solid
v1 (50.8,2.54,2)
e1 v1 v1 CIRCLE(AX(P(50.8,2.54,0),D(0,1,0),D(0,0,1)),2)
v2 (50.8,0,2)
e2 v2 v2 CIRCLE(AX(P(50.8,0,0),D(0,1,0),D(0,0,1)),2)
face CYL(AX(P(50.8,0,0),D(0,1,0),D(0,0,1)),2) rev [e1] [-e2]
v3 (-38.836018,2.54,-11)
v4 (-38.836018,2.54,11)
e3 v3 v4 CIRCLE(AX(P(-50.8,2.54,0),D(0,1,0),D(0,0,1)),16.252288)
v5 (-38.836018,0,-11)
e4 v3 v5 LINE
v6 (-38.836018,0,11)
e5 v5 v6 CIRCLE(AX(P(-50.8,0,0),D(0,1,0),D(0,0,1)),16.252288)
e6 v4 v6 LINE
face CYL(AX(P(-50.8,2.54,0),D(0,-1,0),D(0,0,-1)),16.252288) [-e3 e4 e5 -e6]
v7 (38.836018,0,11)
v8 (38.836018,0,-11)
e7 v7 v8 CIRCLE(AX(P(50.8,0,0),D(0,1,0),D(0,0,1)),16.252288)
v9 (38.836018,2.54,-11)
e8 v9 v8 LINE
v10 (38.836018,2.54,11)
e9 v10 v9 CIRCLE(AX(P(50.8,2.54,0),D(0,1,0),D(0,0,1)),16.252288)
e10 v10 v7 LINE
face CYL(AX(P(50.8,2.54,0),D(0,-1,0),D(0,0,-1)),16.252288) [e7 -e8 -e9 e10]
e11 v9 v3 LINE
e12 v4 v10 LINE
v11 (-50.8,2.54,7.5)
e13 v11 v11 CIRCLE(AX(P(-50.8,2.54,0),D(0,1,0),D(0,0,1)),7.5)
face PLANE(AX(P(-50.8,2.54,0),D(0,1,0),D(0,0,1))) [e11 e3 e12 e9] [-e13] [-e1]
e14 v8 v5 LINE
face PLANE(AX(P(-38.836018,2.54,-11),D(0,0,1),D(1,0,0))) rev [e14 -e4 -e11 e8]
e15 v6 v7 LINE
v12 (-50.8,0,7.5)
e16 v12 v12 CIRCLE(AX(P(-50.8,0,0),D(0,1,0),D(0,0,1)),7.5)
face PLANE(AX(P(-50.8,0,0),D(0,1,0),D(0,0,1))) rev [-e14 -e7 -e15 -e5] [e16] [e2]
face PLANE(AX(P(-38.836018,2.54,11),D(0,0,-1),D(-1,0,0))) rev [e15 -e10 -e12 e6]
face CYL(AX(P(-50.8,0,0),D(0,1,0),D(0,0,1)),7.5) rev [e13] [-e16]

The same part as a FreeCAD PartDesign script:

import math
import FreeCAD as App
import Part
import Sketcher
from FreeCAD import Vector
Q = App.Units.Quantity

doc = App.newDocument("Part")
params = doc.addObject("Spreadsheet::Sheet", "Params")
for row, (alias, value) in enumerate([
    ("pad1_length", "2.54 mm"),
    ("sketch2_diameter", "15 mm"),
    ("sketch2_diameter2", "4 mm"),
    ("pocket1_length", "2.54 mm"),
], start=1):
    params.set(f"A{row}", alias)
    params.set(f"B{row}", "=" + value)
    params.setAlias(f"B{row}", alias)

body = doc.addObject("PartDesign::Body", "Body")

# Sketch on XZ plane
sketch1 = body.newObject("Sketcher::SketchObject", "Sketch")
sketch1.AttachmentSupport = (doc.getObject("XZ_Plane"), [""])
sketch1.MapMode = "FlatFace"
sketch1.addGeometry([
    Part.LineSegment(Vector(39, -11, 0), Vector(-39, -11, 0)),
    Part.ArcOfCircle(Part.Circle(Vector(-51, 0, 0), Vector(0, 0, 1), 16), math.radians(43), math.radians(317)),
    Part.LineSegment(Vector(-39, 11, 0), Vector(39, 11, 0)),
    Part.ArcOfCircle(Part.Circle(Vector(51, 0, 0), Vector(0, 0, 1), 16), math.radians(-137), math.radians(137)),
], False)
sketch1.addConstraint([
    Sketcher.Constraint("Coincident", 0, 2, 1, 2),
    Sketcher.Constraint("Coincident", 1, 1, 2, 1),
    Sketcher.Constraint("Coincident", 2, 2, 3, 2),
    Sketcher.Constraint("Coincident", 3, 1, 0, 1),
    Sketcher.Constraint("Horizontal", 0),
    Sketcher.Constraint("Horizontal", 2),
    Sketcher.Constraint("Equal", 1, 3),
    Sketcher.Constraint("Symmetric", 1, 3, 3, 3, -1, 1),
    Sketcher.Constraint("Symmetric", 0, 2, 1, 1, -1),
    Sketcher.Constraint("DistanceY", 0, 2, -1, 1, Q("11 mm")),
    Sketcher.Constraint("DistanceX", 1, 3, -1, 1, Q("50.8 mm")),
    Sketcher.Constraint("Radius", 1, Q("16.252288 mm")),
])
pad1 = body.newObject("PartDesign::Pad", "Pad")
pad1.Profile = sketch1
pad1.setExpression("Length", "Params.pad1_length")
pad1.Reversed = True

# Sketch on XZ plane
sketch2 = body.newObject("Sketcher::SketchObject", "Sketch001")
sketch2.AttachmentSupport = (doc.getObject("XZ_Plane"), [""])
sketch2.MapMode = "FlatFace"
sketch2.AttachmentOffset = App.Placement(Vector(0, 0, -2.54), App.Rotation())
sketch2.addGeometry([
    Part.Circle(Vector(-50.8, 0, 0), Vector(0, 0, 1), 7.5),
    Part.Circle(Vector(50.8, 0, 0), Vector(0, 0, 1), 2),
], False)
sketch2.addConstraint([
    Sketcher.Constraint("Symmetric", 0, 3, 1, 3, -1, 1),
    Sketcher.Constraint("PointOnObject", 0, 3, -1),
    Sketcher.Constraint("Diameter", 0, Q("15 mm")),
    Sketcher.Constraint("Diameter", 1, Q("4 mm")),
    Sketcher.Constraint("DistanceX", 0, 3, -1, 1, Q("50.8 mm")),
])
sketch2.setExpression("Constraints[2]", "Params.sketch2_diameter")
sketch2.setExpression("Constraints[3]", "Params.sketch2_diameter2")
pocket1 = body.newObject("PartDesign::Pocket", "Pocket")
pocket1.Profile = sketch2
pocket1.setExpression("Length", "Params.pocket1_length")
pocket1.Reversed = True

doc.recompute()
